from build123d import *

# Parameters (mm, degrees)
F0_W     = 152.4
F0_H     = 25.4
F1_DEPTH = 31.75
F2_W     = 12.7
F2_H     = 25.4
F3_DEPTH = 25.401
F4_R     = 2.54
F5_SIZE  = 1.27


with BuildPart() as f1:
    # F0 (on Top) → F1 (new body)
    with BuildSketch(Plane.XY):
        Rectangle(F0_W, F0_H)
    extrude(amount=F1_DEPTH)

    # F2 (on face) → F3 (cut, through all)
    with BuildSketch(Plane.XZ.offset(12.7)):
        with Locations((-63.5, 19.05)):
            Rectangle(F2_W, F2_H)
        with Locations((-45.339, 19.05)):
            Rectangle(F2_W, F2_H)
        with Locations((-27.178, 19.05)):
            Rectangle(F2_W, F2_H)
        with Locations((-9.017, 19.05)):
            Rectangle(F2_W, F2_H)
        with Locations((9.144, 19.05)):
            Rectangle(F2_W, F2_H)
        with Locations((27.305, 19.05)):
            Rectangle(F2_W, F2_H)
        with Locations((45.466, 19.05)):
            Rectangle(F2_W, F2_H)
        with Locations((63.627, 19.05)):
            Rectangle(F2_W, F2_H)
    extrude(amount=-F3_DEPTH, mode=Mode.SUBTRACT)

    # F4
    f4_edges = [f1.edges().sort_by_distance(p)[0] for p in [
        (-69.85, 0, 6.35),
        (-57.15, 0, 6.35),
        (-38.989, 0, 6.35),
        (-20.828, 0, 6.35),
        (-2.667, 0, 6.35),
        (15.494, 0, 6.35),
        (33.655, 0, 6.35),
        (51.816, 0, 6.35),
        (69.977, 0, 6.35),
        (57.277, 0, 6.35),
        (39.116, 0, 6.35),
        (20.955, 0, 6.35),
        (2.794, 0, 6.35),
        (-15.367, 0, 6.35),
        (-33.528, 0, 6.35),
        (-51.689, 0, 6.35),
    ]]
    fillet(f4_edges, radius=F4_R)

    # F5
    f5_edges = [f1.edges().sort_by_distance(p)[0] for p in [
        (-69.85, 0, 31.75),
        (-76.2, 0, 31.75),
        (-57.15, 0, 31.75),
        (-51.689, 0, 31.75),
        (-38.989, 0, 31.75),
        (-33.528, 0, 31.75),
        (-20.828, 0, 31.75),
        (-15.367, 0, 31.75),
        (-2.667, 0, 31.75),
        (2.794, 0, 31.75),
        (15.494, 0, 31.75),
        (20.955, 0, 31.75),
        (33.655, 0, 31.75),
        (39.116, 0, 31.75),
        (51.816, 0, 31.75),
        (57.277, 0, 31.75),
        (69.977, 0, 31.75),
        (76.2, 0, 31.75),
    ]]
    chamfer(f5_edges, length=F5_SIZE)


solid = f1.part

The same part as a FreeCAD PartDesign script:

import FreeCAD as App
import Part
import Sketcher

V = App.Vector
Q = App.Units.Quantity


def edges_at(feature, points):
    """Names of the edges that pass closest to the given points."""
    edges = feature.Shape.Edges
    near = lambda p: min(range(len(edges)), key=lambda i: edges[i].distToShape(Part.Vertex(*p))[0])
    return sorted({f"Edge{near(p) + 1}" for p in points})


def add_polygon(sketch, points):
    """Adds a closed chain of lines whose ends are joined by coincident constraints."""
    first, n = sketch.GeometryCount, len(points)
    for a, b in zip(points, points[1:] + points[:1]):
        sketch.addGeometry(Part.LineSegment(App.Vector(*a, 0), App.Vector(*b, 0)), False)
    for i in range(n):
        sketch.addConstraint(Sketcher.Constraint("Coincident", first + i, 2, first + (i + 1) % n, 1))

doc = App.newDocument("Part")
body = doc.addObject("PartDesign::Body", "Body")

# Sketch on XY plane
sketch1 = doc.addObject("Sketcher::SketchObject", "Sketch")
body.addObject(sketch1)
sketch1.AttachmentSupport = (doc.XY_Plane, [""])
sketch1.MapMode = "FlatFace"
add_polygon(sketch1, [(-76, 13), (-76, -13), (76, -13), (76, 13)])  # lines 0-3
sketch1.addConstraint([
    Sketcher.Constraint("Vertical", 0),
    Sketcher.Constraint("Horizontal", 1),
    Sketcher.Constraint("Vertical", 2),
    Sketcher.Constraint("Horizontal", 3),
    Sketcher.Constraint("Symmetric", 0, 2, 2, 2, -1, 1),
    Sketcher.Constraint("DistanceX", 1, 1, 1, 2, Q("6 in")),
    Sketcher.Constraint("DistanceY", 0, 2, 0, 1, Q("1 in")),
])
pad1 = doc.addObject("PartDesign::Pad", "Pad")
body.addObject(pad1)
pad1.Profile = sketch1
pad1.Length = Q("1.25 in")

# Sketch on XZ plane
sketch2 = doc.addObject("Sketcher::SketchObject", "Sketch001")
body.addObject(sketch2)
sketch2.AttachmentSupport = (doc.XZ_Plane, [""])
sketch2.MapMode = "FlatFace"
sketch2.AttachmentOffset = App.Placement(V(0, 0, 0.5 * 25.4), App.Rotation())
add_polygon(sketch2, [(-70, 32), (-70, 6), (-57, 6), (-57, 32)])  # lines 0-3
add_polygon(sketch2, [(-52, 32), (-52, 6), (-39, 6), (-39, 32)])  # lines 4-7
add_polygon(sketch2, [(-34, 32), (-34, 6), (-21, 6), (-21, 32)])  # lines 8-11
add_polygon(sketch2, [(-15, 32), (-15, 6), (-3, 6), (-3, 32)])  # lines 12-15
add_polygon(sketch2, [(3, 32), (3, 6), (15, 6), (15, 32)])  # lines 16-19
add_polygon(sketch2, [(21, 32), (21, 6), (34, 6), (34, 32)])  # lines 20-23
add_polygon(sketch2, [(39, 32), (39, 6), (52, 6), (52, 32)])  # lines 24-27
add_polygon(sketch2, [(57, 32), (57, 6), (70, 6), (70, 32)])  # lines 28-31
sketch2.addConstraint([
    Sketcher.Constraint("Vertical", 0),
    Sketcher.Constraint("Horizontal", 1),
    Sketcher.Constraint("Vertical", 2),
    Sketcher.Constraint("Horizontal", 3),
    Sketcher.Constraint("Vertical", 4),
    Sketcher.Constraint("Horizontal", 5),
    Sketcher.Constraint("Vertical", 6),
    Sketcher.Constraint("Horizontal", 7),
    Sketcher.Constraint("Vertical", 8),
    Sketcher.Constraint("Horizontal", 9),
    Sketcher.Constraint("Vertical", 10),
    Sketcher.Constraint("Horizontal", 11),
    Sketcher.Constraint("Vertical", 12),
    Sketcher.Constraint("Horizontal", 13),
    Sketcher.Constraint("Vertical", 14),
    Sketcher.Constraint("Horizontal", 15),
    Sketcher.Constraint("Vertical", 16),
    Sketcher.Constraint("Horizontal", 17),
    Sketcher.Constraint("Vertical", 18),
    Sketcher.Constraint("Horizontal", 19),
    Sketcher.Constraint("Vertical", 20),
    Sketcher.Constraint("Horizontal", 21),
    Sketcher.Constraint("Vertical", 22),
    Sketcher.Constraint("Horizontal", 23),
    Sketcher.Constraint("Vertical", 24),
    Sketcher.Constraint("Horizontal", 25),
    Sketcher.Constraint("Vertical", 26),
    Sketcher.Constraint("Horizontal", 27),
    Sketcher.Constraint("Vertical", 28),
    Sketcher.Constraint("Horizontal", 29),
    Sketcher.Constraint("Vertical", 30),
    Sketcher.Constraint("Horizontal", 31),
    Sketcher.Constraint("Horizontal", 1, 2, 4, 2),
    Sketcher.Constraint("Horizontal", 3, 2, 6, 2),
    Sketcher.Constraint("Horizontal", 5, 2, 8, 2),
    Sketcher.Constraint("Horizontal", 7, 2, 10, 2),
    Sketcher.Constraint("Horizontal", 9, 2, 12, 2),
    Sketcher.Constraint("Horizontal", 11, 2, 14, 2),
    Sketcher.Constraint("Horizontal", 13, 2, 16, 2),
    Sketcher.Constraint("Horizontal", 15, 2, 18, 2),
    Sketcher.Constraint("Horizontal", 17, 2, 20, 2),
    Sketcher.Constraint("Horizontal", 19, 2, 22, 2),
    Sketcher.Constraint("Horizontal", 21, 2, 24, 2),
    Sketcher.Constraint("Horizontal", 23, 2, 26, 2),
    Sketcher.Constraint("Horizontal", 25, 2, 28, 2),
    Sketcher.Constraint("Horizontal", 27, 2, 30, 2),
    Sketcher.Constraint("Equal", 3, 5),
    Sketcher.Constraint("Equal", 7, 9),
    Sketcher.Constraint("Equal", 11, 13),
    Sketcher.Constraint("Equal", 15, 17),
    Sketcher.Constraint("Equal", 19, 21),
    Sketcher.Constraint("Equal", 23, 25),
    Sketcher.Constraint("Equal", 27, 29),
    Sketcher.Constraint("DistanceY", 0, 2, 0, 1, Q("1 in")),
    Sketcher.Constraint("DistanceX", 1, 1, 1, 2, Q("0.5 in")),
    Sketcher.Constraint("DistanceX", 0, 2, -1, 1, Q("2.75 in")),
    Sketcher.Constraint("DistanceY", -1, 1, 0, 2, Q("0.25 in")),
    Sketcher.Constraint("DistanceX", 8, 2, -1, 1, Q("1.32 in")),
    Sketcher.Constraint("DistanceX", -1, 1, 16, 2, Q("0.11 in")),
    Sketcher.Constraint("DistanceX", -1, 1, 24, 2, Q("1.54 in")),
    Sketcher.Constraint("DistanceX", 5, 2, 12, 2, Q("0.93 in")),
    Sketcher.Constraint("DistanceX", 13, 2, 20, 2, Q("0.93 in")),
    Sketcher.Constraint("DistanceX", 21, 2, 28, 2, Q("0.93 in")),
    Sketcher.Constraint("DistanceX", 4, 2, -1, 1, Q("2.035 in")),
])
pocket1 = doc.addObject("PartDesign::Pocket", "Pocket")
body.addObject(pocket1)
pocket1.Profile = sketch2
pocket1.Type = "ThroughAll"
doc.recompute()

fillet = doc.addObject("PartDesign::Fillet", "Fillet")
body.addObject(fillet)
fillet.Base = (pocket1, edges_at(pocket1, [
    (-69.85, 0, 6.35),
    (-57.15, 0, 6.35),
    (-38.989, 0, 6.35),
    (-20.828, 0, 6.35),
    (-2.667, 0, 6.35),
    (15.494, 0, 6.35),
    (33.655, 0, 6.35),
    (51.816, 0, 6.35),
    (69.977, 0, 6.35),
    (57.277, 0, 6.35),
    (39.116, 0, 6.35),
    (20.955, 0, 6.35),
    (2.794, 0, 6.35),
    (-15.367, 0, 6.35),
    (-33.528, 0, 6.35),
    (-51.689, 0, 6.35),
]))
fillet.Radius = Q("0.1 in")
doc.recompute()

chamfer = doc.addObject("PartDesign::Chamfer", "Chamfer")
body.addObject(chamfer)
chamfer.Base = (fillet, edges_at(fillet, [
    (-69.85, 0, 31.75),
    (-76.2, 0, 31.75),
    (-57.15, 0, 31.75),
    (-51.689, 0, 31.75),
    (-38.989, 0, 31.75),
    (-33.528, 0, 31.75),
    (-20.828, 0, 31.75),
    (-15.367, 0, 31.75),
    (-2.667, 0, 31.75),
    (2.794, 0, 31.75),
    (15.494, 0, 31.75),
    (20.955, 0, 31.75),
    (33.655, 0, 31.75),
    (39.116, 0, 31.75),
    (51.816, 0, 31.75),
    (57.277, 0, 31.75),
    (69.977, 0, 31.75),
    (76.2, 0, 31.75),
]))
chamfer.Size = Q("0.05 in")

doc.recompute()
